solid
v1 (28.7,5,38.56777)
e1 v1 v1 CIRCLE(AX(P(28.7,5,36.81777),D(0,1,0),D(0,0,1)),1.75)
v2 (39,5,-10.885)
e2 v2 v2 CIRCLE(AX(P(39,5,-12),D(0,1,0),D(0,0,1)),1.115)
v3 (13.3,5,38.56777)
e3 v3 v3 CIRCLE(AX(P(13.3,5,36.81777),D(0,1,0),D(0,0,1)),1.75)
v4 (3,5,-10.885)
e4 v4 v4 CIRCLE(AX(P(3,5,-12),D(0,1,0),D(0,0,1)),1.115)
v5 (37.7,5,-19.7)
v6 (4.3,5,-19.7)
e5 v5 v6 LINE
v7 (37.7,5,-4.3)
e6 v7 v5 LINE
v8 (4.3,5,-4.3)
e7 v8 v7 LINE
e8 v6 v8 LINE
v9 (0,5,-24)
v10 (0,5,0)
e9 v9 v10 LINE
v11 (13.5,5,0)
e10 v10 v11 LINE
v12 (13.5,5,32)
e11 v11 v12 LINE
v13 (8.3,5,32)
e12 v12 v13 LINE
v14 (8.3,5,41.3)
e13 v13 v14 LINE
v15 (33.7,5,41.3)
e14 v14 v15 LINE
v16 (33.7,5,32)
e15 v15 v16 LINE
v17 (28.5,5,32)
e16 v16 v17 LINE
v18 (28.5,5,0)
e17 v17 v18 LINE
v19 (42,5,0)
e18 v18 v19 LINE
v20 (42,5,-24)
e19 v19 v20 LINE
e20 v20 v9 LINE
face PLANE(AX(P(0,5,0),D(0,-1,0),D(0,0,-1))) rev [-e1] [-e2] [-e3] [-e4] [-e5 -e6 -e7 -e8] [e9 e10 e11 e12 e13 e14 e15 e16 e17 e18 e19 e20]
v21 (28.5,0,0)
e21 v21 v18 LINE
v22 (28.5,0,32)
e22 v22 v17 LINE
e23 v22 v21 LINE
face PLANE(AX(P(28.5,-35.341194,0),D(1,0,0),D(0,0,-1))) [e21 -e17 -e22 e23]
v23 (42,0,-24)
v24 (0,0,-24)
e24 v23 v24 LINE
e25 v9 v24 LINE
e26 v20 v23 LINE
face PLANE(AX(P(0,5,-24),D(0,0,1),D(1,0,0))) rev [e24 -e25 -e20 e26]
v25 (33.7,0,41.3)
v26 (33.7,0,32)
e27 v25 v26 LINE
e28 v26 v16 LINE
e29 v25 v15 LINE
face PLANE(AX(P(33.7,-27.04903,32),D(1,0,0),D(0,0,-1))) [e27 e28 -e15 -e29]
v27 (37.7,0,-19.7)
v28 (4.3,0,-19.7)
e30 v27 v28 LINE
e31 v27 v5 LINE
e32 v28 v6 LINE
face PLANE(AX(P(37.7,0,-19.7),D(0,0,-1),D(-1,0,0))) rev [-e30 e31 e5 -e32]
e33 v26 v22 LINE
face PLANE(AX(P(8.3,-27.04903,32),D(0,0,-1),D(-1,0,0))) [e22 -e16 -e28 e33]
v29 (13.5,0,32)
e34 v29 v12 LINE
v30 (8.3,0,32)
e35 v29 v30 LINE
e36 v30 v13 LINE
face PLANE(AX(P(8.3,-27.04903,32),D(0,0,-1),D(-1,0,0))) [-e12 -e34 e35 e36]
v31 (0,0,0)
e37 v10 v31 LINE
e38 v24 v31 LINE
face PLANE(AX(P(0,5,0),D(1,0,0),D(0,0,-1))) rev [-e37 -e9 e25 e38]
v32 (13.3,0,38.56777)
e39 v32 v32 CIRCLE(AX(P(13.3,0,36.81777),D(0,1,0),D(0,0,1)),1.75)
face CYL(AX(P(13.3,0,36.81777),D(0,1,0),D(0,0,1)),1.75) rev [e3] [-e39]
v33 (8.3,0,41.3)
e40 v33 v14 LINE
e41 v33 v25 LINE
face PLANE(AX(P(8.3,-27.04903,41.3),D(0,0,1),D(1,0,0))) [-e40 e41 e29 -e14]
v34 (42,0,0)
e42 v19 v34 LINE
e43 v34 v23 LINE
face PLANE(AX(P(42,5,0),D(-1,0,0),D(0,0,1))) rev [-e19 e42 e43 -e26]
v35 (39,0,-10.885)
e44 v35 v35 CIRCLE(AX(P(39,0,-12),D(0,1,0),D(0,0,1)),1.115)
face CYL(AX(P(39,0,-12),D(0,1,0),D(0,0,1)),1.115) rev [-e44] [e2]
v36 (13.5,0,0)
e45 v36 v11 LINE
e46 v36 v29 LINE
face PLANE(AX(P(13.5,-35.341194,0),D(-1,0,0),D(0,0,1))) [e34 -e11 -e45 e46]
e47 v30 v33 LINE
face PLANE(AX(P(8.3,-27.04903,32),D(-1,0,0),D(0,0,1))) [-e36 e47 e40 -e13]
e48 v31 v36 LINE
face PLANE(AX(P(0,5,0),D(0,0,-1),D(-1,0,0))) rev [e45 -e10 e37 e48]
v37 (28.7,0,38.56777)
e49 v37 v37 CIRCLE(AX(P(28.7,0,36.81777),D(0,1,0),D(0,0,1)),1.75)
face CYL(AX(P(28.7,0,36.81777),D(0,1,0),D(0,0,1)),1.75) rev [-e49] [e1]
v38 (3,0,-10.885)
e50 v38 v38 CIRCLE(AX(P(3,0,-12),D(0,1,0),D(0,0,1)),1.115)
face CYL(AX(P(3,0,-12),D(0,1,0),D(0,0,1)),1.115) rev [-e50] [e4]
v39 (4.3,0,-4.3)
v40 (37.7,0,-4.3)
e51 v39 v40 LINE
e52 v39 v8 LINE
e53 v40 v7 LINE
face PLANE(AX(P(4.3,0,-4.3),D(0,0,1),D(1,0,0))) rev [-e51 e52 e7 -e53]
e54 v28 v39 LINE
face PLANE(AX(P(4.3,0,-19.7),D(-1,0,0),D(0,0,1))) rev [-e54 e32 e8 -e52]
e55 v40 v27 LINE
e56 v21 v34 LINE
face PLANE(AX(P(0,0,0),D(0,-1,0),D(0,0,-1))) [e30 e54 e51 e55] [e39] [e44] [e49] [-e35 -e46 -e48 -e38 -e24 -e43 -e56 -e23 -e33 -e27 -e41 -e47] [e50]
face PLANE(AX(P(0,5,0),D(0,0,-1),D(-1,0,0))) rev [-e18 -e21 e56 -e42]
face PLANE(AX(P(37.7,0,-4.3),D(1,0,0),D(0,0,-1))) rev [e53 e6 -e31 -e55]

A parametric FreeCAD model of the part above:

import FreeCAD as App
import Part
import Sketcher

V = App.Vector
Q = App.Units.Quantity


def add_polygon(sketch, points):
    """Adds a closed chain of lines whose ends are joined by coincident constraints."""
    first, n = sketch.GeometryCount, len(points)
    for a, b in zip(points, points[1:] + points[:1]):
        sketch.addGeometry(Part.LineSegment(App.Vector(*a, 0), App.Vector(*b, 0)), False)
    for i in range(n):
        sketch.addConstraint(Sketcher.Constraint("Coincident", first + i, 2, first + (i + 1) % n, 1))

doc = App.newDocument("Part")
params = doc.addObject("Spreadsheet::Sheet", "Params")
for row, (alias, value) in enumerate([
    ("sketch1_width", "42 mm"),
    ("sketch1_height", "24 mm"),
    ("pad1_length", "5 mm"),
    ("sketch2_width", "33.4 mm"),
    ("sketch2_height", "15.4 mm"),
    ("sketch3_width", "15 mm"),
    ("sketch3_height", "32 mm"),
    ("pad2_length", "5 mm"),
    ("sketch4_width", "25.4 mm"),
    ("sketch4_height", "9.3 mm"),
    ("pad3_length", "5 mm"),
    ("sketch5_diameter", "3.5 mm"),
    ("sketch6_diameter", "2.23 mm"),
], start=1):
    params.set(f"A{row}", alias)
    params.set(f"B{row}", "=" + value)
    params.setAlias(f"B{row}", alias)

body = doc.addObject("PartDesign::Body", "Body")

# Sketch on XZ plane
sketch1 = body.newObject("Sketcher::SketchObject", "Sketch")
sketch1.AttachmentSupport = (doc.getObject("XZ_Plane"), [""])
sketch1.MapMode = "FlatFace"
add_polygon(sketch1, [(0, -24), (0, 0), (42, 0), (42, -24)])  # lines 0-3
sketch1.addConstraint(Sketcher.Constraint("Vertical", 0))
sketch1.addConstraint(Sketcher.Constraint("Horizontal", 1))
sketch1.addConstraint(Sketcher.Constraint("Vertical", 2))
sketch1.addConstraint(Sketcher.Constraint("Horizontal", 3))
sketch1.addConstraint(Sketcher.Constraint("Coincident", 0, 2, -1, 1))
sketch1.addConstraint(Sketcher.Constraint("DistanceX", 1, 1, 1, 2, Q("42 mm")))
sketch1.addConstraint(Sketcher.Constraint("DistanceY", 0, 1, 0, 2, Q("24 mm")))
sketch1.setExpression("Constraints[9]", "Params.sketch1_width")
sketch1.setExpression("Constraints[10]", "Params.sketch1_height")
pad1 = body.newObject("PartDesign::Pad", "Pad")
pad1.Profile = sketch1
pad1.setExpression("Length", "Params.pad1_length")
pad1.Reversed = True

# Sketch on XZ plane
sketch2 = body.newObject("Sketcher::SketchObject", "Sketch001")
sketch2.AttachmentSupport = (doc.getObject("XZ_Plane"), [""])
sketch2.MapMode = "FlatFace"
sketch2.AttachmentOffset = App.Placement(V(0, 0, -5), App.Rotation())
add_polygon(sketch2, [(4.3, -19.7), (4.3, -4.3), (37.7, -4.3), (37.7, -19.7)])  # lines 0-3
sketch2.addConstraint(Sketcher.Constraint("Vertical", 0))
sketch2.addConstraint(Sketcher.Constraint("Horizontal", 1))
sketch2.addConstraint(Sketcher.Constraint("Vertical", 2))
sketch2.addConstraint(Sketcher.Constraint("Horizontal", 3))
sketch2.addConstraint(Sketcher.Constraint("DistanceX", 1, 1, 1, 2, Q("33.4 mm")))
sketch2.addConstraint(Sketcher.Constraint("DistanceY", 0, 1, 0, 2, Q("15.4 mm")))
sketch2.addConstraint(Sketcher.Constraint("DistanceX", -1, 1, 0, 2, Q("4.3 mm")))
sketch2.addConstraint(Sketcher.Constraint("DistanceY", 0, 2, -1, 1, Q("4.3 mm")))
sketch2.setExpression("Constraints[8]", "Params.sketch2_width")
sketch2.setExpression("Constraints[9]", "Params.sketch2_height")
pocket1 = body.newObject("PartDesign::Pocket", "Pocket")
pocket1.Profile = sketch2
pocket1.Type = "ThroughAll"
pocket1.Reversed = True

# Sketch on XZ plane
sketch3 = body.newObject("Sketcher::SketchObject", "Sketch002")
sketch3.AttachmentSupport = (doc.getObject("XZ_Plane"), [""])
sketch3.MapMode = "FlatFace"
sketch3.AttachmentOffset = App.Placement(V(0, 0, -5), App.Rotation())
add_polygon(sketch3, [(13.5, 0), (13.5, 32), (28.5, 32), (28.5, 0)])  # lines 0-3
sketch3.addConstraint(Sketcher.Constraint("Vertical", 0))
sketch3.addConstraint(Sketcher.Constraint("Horizontal", 1))
sketch3.addConstraint(Sketcher.Constraint("Vertical", 2))
sketch3.addConstraint(Sketcher.Constraint("Horizontal", 3))
sketch3.addConstraint(Sketcher.Constraint("PointOnObject", 2, 2, -1))
sketch3.addConstraint(Sketcher.Constraint("DistanceX", 1, 1, 1, 2, Q("15 mm")))
sketch3.addConstraint(Sketcher.Constraint("DistanceY", 0, 1, 0, 2, Q("32 mm")))
sketch3.addConstraint(Sketcher.Constraint("DistanceX", -1, 1, 0, 2, Q("13.5 mm")))
sketch3.setExpression("Constraints[9]", "Params.sketch3_width")
sketch3.setExpression("Constraints[10]", "Params.sketch3_height")
pad2 = body.newObject("PartDesign::Pad", "Pad001")
pad2.Profile = sketch3
pad2.setExpression("Length", "Params.pad2_length")

# Sketch on XZ plane
sketch4 = body.newObject("Sketcher::SketchObject", "Sketch003")
sketch4.AttachmentSupport = (doc.getObject("XZ_Plane"), [""])
sketch4.MapMode = "FlatFace"
sketch4.AttachmentOffset = App.Placement(V(0, 0, -5), App.Rotation())
add_polygon(sketch4, [(8.3, 32), (8.3, 41.3), (33.7, 41.3), (33.7, 32)])  # lines 0-3
sketch4.addConstraint(Sketcher.Constraint("Vertical", 0))
sketch4.addConstraint(Sketcher.Constraint("Horizontal", 1))
sketch4.addConstraint(Sketcher.Constraint("Vertical", 2))
sketch4.addConstraint(Sketcher.Constraint("Horizontal", 3))
sketch4.addConstraint(Sketcher.Constraint("DistanceX", 1, 1, 1, 2, Q("25.4 mm")))
sketch4.addConstraint(Sketcher.Constraint("DistanceY", 0, 1, 0, 2, Q("9.3 mm")))
sketch4.addConstraint(Sketcher.Constraint("DistanceY", -1, 1, 2, 2, Q("32 mm")))
sketch4.addConstraint(Sketcher.Constraint("DistanceX", -1, 1, 0, 2, Q("8.3 mm")))
sketch4.setExpression("Constraints[8]", "Params.sketch4_width")
sketch4.setExpression("Constraints[9]", "Params.sketch4_height")
pad3 = body.newObject("PartDesign::Pad", "Pad002")
pad3.Profile = sketch4
pad3.setExpression("Length", "Params.pad3_length")

# Sketch on XZ plane
sketch5 = body.newObject("Sketcher::SketchObject", "Sketch004")
sketch5.AttachmentSupport = (doc.getObject("XZ_Plane"), [""])
sketch5.MapMode = "FlatFace"
sketch5.AttachmentOffset = App.Placement(V(0, 0, -5), App.Rotation())
sketch5.addGeometry(Part.Circle(V(13.3, 36.81777, 0), V(0, 0, 1), 1.75), False)
sketch5.addGeometry(Part.Circle(V(28.7, 36.81777, 0), V(0, 0, 1), 1.75), False)
sketch5.addConstraint(Sketcher.Constraint("Equal", 0, 1))
sketch5.addConstraint(Sketcher.Constraint("Horizontal", 0, 3, 1, 3))
sketch5.addConstraint(Sketcher.Constraint("Diameter", 0, Q("3.5 mm")))
sketch5.addConstraint(Sketcher.Constraint("DistanceX", -1, 1, 0, 3, Q("13.3 mm")))
sketch5.addConstraint(Sketcher.Constraint("DistanceX", -1, 1, 1, 3, Q("28.7 mm")))
sketch5.addConstraint(Sketcher.Constraint("DistanceY", -1, 1, 0, 3, Q("36.81777 mm")))
sketch5.setExpression("Constraints[2]", "Params.sketch5_diameter")
pocket2 = body.newObject("PartDesign::Pocket", "Pocket001")
pocket2.Profile = sketch5
pocket2.Type = "ThroughAll"
pocket2.Reversed = True

# Sketch on XZ plane
sketch6 = body.newObject("Sketcher::SketchObject", "Sketch005")
sketch6.AttachmentSupport = (doc.getObject("XZ_Plane"), [""])
sketch6.MapMode = "FlatFace"
sketch6.AttachmentOffset = App.Placement(V(0, 0, -5), App.Rotation())
sketch6.addGeometry(Part.Circle(V(3, -12, 0), V(0, 0, 1), 1.115), False)
sketch6.addGeometry(Part.Circle(V(39, -12, 0), V(0, 0, 1), 1.115), False)
sketch6.addConstraint(Sketcher.Constraint("Equal", 0, 1))
sketch6.addConstraint(Sketcher.Constraint("Horizontal", 0, 3, 1, 3))
sketch6.addConstraint(Sketcher.Constraint("Diameter", 0, Q("2.23 mm")))
sketch6.addConstraint(Sketcher.Constraint("DistanceX", -1, 1, 0, 3, Q("3 mm")))
sketch6.addConstraint(Sketcher.Constraint("DistanceY", 0, 3, -1, 1, Q("12 mm")))
sketch6.addConstraint(Sketcher.Constraint("DistanceX", -1, 1, 1, 3, Q("39 mm")))
sketch6.setExpression("Constraints[2]", "Params.sketch6_diameter")
pocket3 = body.newObject("PartDesign::Pocket", "Pocket002")
pocket3.Profile = sketch6
pocket3.Type = "ThroughAll"
pocket3.Reversed = True

doc.recompute()
